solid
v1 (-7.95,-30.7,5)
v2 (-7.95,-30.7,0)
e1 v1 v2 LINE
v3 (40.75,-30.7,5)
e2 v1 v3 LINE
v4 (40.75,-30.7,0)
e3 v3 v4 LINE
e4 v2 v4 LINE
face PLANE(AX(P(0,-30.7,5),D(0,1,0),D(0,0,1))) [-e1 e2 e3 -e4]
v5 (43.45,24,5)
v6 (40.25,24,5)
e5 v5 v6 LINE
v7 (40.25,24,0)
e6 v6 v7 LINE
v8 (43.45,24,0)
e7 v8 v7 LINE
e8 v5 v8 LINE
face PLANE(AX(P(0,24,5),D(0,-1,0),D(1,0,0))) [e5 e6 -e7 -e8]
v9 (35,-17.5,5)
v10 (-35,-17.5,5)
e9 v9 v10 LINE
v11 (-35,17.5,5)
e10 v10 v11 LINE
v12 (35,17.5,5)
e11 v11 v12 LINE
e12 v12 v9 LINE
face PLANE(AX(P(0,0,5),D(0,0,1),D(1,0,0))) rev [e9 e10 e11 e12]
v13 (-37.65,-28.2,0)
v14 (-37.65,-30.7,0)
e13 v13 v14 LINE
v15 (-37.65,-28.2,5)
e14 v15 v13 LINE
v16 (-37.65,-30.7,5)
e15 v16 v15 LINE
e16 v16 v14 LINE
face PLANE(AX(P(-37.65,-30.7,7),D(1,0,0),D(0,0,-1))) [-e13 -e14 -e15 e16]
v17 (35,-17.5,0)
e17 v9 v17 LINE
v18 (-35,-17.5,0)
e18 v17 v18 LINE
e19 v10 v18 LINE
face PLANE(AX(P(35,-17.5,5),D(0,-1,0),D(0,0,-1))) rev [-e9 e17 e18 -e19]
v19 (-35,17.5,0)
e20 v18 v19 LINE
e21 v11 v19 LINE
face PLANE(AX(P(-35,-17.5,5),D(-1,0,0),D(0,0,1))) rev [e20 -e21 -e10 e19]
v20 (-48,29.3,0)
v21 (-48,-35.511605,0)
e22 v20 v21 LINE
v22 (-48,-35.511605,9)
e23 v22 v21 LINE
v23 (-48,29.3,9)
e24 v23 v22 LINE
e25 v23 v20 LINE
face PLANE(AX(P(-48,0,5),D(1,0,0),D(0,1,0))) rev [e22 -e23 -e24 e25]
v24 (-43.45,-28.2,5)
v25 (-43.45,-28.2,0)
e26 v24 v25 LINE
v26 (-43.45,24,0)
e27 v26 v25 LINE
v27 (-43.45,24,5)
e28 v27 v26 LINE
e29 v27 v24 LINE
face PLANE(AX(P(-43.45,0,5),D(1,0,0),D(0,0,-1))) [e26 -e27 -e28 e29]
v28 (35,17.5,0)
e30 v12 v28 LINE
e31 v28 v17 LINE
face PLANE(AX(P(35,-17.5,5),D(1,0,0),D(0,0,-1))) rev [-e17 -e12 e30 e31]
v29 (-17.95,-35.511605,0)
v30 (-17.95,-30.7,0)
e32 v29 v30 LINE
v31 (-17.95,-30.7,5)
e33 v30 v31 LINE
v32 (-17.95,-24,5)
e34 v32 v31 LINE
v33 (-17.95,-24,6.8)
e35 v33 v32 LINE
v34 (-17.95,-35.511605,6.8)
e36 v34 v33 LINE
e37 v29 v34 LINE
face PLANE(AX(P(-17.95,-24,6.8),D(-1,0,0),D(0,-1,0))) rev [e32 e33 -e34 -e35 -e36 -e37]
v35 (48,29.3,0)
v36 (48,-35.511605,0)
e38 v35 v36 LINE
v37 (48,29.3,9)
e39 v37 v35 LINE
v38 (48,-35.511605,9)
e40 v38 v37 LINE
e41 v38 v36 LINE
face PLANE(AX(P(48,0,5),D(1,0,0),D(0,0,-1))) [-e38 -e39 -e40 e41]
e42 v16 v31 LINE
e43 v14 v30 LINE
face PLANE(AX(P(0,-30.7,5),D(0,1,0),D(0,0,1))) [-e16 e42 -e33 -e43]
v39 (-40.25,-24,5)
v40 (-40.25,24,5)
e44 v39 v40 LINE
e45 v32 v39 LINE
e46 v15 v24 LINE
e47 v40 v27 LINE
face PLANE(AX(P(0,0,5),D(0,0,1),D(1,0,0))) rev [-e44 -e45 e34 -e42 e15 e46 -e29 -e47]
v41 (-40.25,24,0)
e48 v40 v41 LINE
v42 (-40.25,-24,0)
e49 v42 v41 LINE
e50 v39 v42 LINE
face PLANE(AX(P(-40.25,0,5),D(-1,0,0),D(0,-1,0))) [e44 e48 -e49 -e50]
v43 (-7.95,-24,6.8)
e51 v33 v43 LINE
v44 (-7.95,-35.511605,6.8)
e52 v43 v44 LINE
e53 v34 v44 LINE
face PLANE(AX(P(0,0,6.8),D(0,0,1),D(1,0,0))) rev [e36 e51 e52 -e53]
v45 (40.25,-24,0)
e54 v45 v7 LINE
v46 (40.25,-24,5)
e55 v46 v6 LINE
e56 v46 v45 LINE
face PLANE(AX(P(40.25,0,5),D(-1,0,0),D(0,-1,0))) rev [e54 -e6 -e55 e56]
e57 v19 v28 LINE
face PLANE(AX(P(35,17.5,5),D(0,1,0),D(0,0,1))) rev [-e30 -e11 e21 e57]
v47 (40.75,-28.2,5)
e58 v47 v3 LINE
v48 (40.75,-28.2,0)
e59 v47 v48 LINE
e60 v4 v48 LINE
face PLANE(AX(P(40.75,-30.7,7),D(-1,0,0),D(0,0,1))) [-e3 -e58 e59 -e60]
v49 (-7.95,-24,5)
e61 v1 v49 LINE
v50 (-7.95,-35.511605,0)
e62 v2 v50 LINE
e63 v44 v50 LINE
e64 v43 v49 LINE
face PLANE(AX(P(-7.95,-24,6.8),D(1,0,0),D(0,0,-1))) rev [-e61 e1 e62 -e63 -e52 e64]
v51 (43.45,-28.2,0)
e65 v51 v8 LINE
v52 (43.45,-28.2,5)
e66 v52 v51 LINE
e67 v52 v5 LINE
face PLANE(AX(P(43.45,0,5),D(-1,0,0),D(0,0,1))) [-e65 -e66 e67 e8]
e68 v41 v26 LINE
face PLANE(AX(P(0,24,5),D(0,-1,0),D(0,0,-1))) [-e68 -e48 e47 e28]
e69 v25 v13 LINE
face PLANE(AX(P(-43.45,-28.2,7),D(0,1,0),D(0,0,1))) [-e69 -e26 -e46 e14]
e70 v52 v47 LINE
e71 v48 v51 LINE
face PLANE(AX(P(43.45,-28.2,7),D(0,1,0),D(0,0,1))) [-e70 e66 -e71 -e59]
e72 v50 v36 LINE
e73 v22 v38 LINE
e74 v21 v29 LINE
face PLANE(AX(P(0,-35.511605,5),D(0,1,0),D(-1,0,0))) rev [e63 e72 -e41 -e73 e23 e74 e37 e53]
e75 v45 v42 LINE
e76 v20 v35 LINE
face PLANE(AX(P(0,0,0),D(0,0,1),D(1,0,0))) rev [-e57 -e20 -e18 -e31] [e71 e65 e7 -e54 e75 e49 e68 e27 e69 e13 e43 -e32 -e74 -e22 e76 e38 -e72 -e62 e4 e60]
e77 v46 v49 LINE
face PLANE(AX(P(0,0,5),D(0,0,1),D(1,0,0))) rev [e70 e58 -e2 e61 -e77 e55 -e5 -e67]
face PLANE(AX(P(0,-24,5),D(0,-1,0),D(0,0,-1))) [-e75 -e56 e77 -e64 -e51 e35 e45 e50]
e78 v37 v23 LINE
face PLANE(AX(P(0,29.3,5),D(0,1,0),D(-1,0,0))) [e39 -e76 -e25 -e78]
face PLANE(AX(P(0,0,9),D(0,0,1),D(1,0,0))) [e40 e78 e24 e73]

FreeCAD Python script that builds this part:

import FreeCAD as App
import Part
import Sketcher

V = App.Vector

doc = App.newDocument("Part")
params = doc.addObject("Spreadsheet::Sheet", "Params")
for row, (alias, value) in enumerate([
    ("sketch1_width", "96 mm"),
    ("sketch1_height", "48 mm"),
    ("sketch1_width2", "3.2 mm"),
    ("sketch1_width3", "80.5 mm"),
    ("sketch1_height2", "54.7 mm"),
    ("pad1_length", "5 mm"),
    ("sketch2_width", "96 mm"),
    ("pad2_length", "4 mm"),
    ("sketch3_width", "10 mm"),
    ("sketch3_height", "15 mm"),
    ("pocket1_length", "6.8 mm"),
    ("sketch4_width", "5.8 mm"),
    ("sketch4_width2", "2.7 mm"),
    ("sketch4_height", "2.5 mm"),
    ("pad3_length", "7 mm"),
    ("sketch5_width", "70 mm"),
    ("sketch5_height", "35 mm"),
    ("pocket2_length", "5 mm"),
], start=1):
    params.set(f"A{row}", alias)
    params.set(f"B{row}", "=" + value)
    params.setAlias(f"B{row}", alias)

body = doc.addObject("PartDesign::Body", "Body")

# Sketch on XY plane
sketch1 = body.newObject("Sketcher::SketchObject", "Sketch")
sketch1.AttachmentSupport = (doc.getObject("XY_Plane"), [""])
sketch1.MapMode = "FlatFace"
sketch1.addGeometry(Part.LineSegment(V(-48, 29.3, 0), V(-48, -35.5, 0)), False)
sketch1.addGeometry(Part.LineSegment(V(-48, -35.5, 0), V(48, -35.5, 0)), False)
sketch1.addGeometry(Part.LineSegment(V(48, -35.5, 0), V(48, 29.3, 0)), False)
sketch1.addGeometry(Part.LineSegment(V(48, 29.3, 0), V(-48, 29.3, 0)), False)
sketch1.addGeometry(Part.LineSegment(V(-43.5, 24, 0), V(-40.2, 24, 0)), False)
sketch1.addGeometry(Part.LineSegment(V(-40.2, 24, 0), V(-40.2, -24, 0)), False)
sketch1.addGeometry(Part.LineSegment(V(-40.2, -24, 0), V(40.2, -24, 0)), False)
sketch1.addGeometry(Part.LineSegment(V(40.2, -24, 0), V(40.2, 24, 0)), False)
sketch1.addGeometry(Part.LineSegment(V(40.2, 24, 0), V(43.5, 24, 0)), False)
sketch1.addGeometry(Part.LineSegment(V(43.5, 24, 0), V(43.5, -30.7, 0)), False)
sketch1.addGeometry(Part.LineSegment(V(43.5, -30.7, 0), V(-43.5, -30.7, 0)), False)
sketch1.addGeometry(Part.LineSegment(V(-43.5, -30.7, 0), V(-43.5, 24, 0)), False)
sketch1.addConstraint(Sketcher.Constraint("Coincident", 0, 2, 1, 1))
sketch1.addConstraint(Sketcher.Constraint("Coincident", 1, 2, 2, 1))
sketch1.addConstraint(Sketcher.Constraint("Coincident", 2, 2, 3, 1))
sketch1.addConstraint(Sketcher.Constraint("Coincident", 3, 2, 0, 1))
sketch1.addConstraint(Sketcher.Constraint("Coincident", 4, 2, 5, 1))
sketch1.addConstraint(Sketcher.Constraint("Coincident", 5, 2, 6, 1))
sketch1.addConstraint(Sketcher.Constraint("Coincident", 6, 2, 7, 1))
sketch1.addConstraint(Sketcher.Constraint("Coincident", 7, 2, 8, 1))
sketch1.addConstraint(Sketcher.Constraint("Coincident", 8, 2, 9, 1))
sketch1.addConstraint(Sketcher.Constraint("Coincident", 9, 2, 10, 1))
sketch1.addConstraint(Sketcher.Constraint("Coincident", 10, 2, 11, 1))
sketch1.addConstraint(Sketcher.Constraint("Coincident", 11, 2, 4, 1))
sketch1.addConstraint(Sketcher.Constraint("Vertical", 0))
sketch1.addConstraint(Sketcher.Constraint("Horizontal", 1))
sketch1.addConstraint(Sketcher.Constraint("Vertical", 2))
sketch1.addConstraint(Sketcher.Constraint("Horizontal", 3))
sketch1.addConstraint(Sketcher.Constraint("Horizontal", 4))
sketch1.addConstraint(Sketcher.Constraint("Vertical", 5))
sketch1.addConstraint(Sketcher.Constraint("Horizontal", 6))
sketch1.addConstraint(Sketcher.Constraint("Vertical", 7))
sketch1.addConstraint(Sketcher.Constraint("Horizontal", 8))
sketch1.addConstraint(Sketcher.Constraint("Vertical", 9))
sketch1.addConstraint(Sketcher.Constraint("Horizontal", 10))
sketch1.addConstraint(Sketcher.Constraint("Vertical", 11))
sketch1.addConstraint(Sketcher.Constraint("Symmetric", 4, 2, 6, 2, -1, 1))
sketch1.addConstraint(Sketcher.Constraint("Symmetric", 8, 2, 11, 2, -2))
sketch1.addConstraint(Sketcher.Constraint("DistanceX", 1, 1, 1, 2, 96.0))
sketch1.addConstraint(Sketcher.Constraint("DistanceY", 5, 2, 5, 1, 48.0))
sketch1.addConstraint(Sketcher.Constraint("DistanceX", 4, 1, 4, 2, 3.2))
sketch1.addConstraint(Sketcher.Constraint("DistanceX", 6, 1, 6, 2, 80.5))
sketch1.addConstraint(Sketcher.Constraint("DistanceY", 9, 2, 9, 1, 54.7))
sketch1.addConstraint(Sketcher.Constraint("DistanceX", 0, 2, -1, 1, 48.0))
sketch1.addConstraint(Sketcher.Constraint("DistanceY", 9, 2, 2, 2, 60.0))
sketch1.addConstraint(Sketcher.Constraint("DistanceY", 0, 2, 0, 1, 64.811605))
sketch1.setExpression("Constraints[26]", "Params.sketch1_width")
sketch1.setExpression("Constraints[27]", "Params.sketch1_height")
sketch1.setExpression("Constraints[28]", "Params.sketch1_width2")
sketch1.setExpression("Constraints[29]", "Params.sketch1_width3")
sketch1.setExpression("Constraints[30]", "Params.sketch1_height2")
pad1 = body.newObject("PartDesign::Pad", "Pad")
pad1.Profile = sketch1
pad1.setExpression("Length", "Params.pad1_length")

# Sketch on XY plane
sketch2 = body.newObject("Sketcher::SketchObject", "Sketch001")
sketch2.AttachmentSupport = (doc.getObject("XY_Plane"), [""])
sketch2.MapMode = "FlatFace"
sketch2.AttachmentOffset = App.Placement(V(0, 0, 5), App.Rotation())
sketch2.addGeometry(Part.LineSegment(V(-48, 29, 0), V(-48, -36, 0)), False)
sketch2.addGeometry(Part.LineSegment(V(-48, -36, 0), V(48, -36, 0)), False)
sketch2.addGeometry(Part.LineSegment(V(48, -36, 0), V(48, 29, 0)), False)
sketch2.addGeometry(Part.LineSegment(V(48, 29, 0), V(-48, 29, 0)), False)
sketch2.addConstraint(Sketcher.Constraint("Coincident", 0, 2, 1, 1))
sketch2.addConstraint(Sketcher.Constraint("Coincident", 1, 2, 2, 1))
sketch2.addConstraint(Sketcher.Constraint("Coincident", 2, 2, 3, 1))
sketch2.addConstraint(Sketcher.Constraint("Coincident", 3, 2, 0, 1))
sketch2.addConstraint(Sketcher.Constraint("Vertical", 0))
sketch2.addConstraint(Sketcher.Constraint("Horizontal", 1))
sketch2.addConstraint(Sketcher.Constraint("Vertical", 2))
sketch2.addConstraint(Sketcher.Constraint("Horizontal", 3))
sketch2.addConstraint(Sketcher.Constraint("DistanceX", 1, 1, 1, 2, 96.0))
sketch2.addConstraint(Sketcher.Constraint("DistanceX", 0, 2, -1, 1, 48.0))
sketch2.addConstraint(Sketcher.Constraint("DistanceY", -1, 1, 2, 2, 29.3))
sketch2.addConstraint(Sketcher.Constraint("DistanceY", 0, 2, 0, 1, 64.811605))
sketch2.setExpression("Constraints[8]", "Params.sketch2_width")
pad2 = body.newObject("PartDesign::Pad", "Pad001")
pad2.Profile = sketch2
pad2.setExpression("Length", "Params.pad2_length")

# Sketch on XY plane
sketch3 = body.newObject("Sketcher::SketchObject", "Sketch002")
sketch3.AttachmentSupport = (doc.getObject("XY_Plane"), [""])
sketch3.MapMode = "FlatFace"
sketch3.addGeometry(Part.LineSegment(V(-8, -24, 0), V(-8, -39, 0)), False)
sketch3.addGeometry(Part.LineSegment(V(-8, -39, 0), V(-18, -39, 0)), False)
sketch3.addGeometry(Part.LineSegment(V(-18, -39, 0), V(-18, -24, 0)), False)
sketch3.addGeometry(Part.LineSegment(V(-18, -24, 0), V(-8, -24, 0)), False)
sketch3.addConstraint(Sketcher.Constraint("Coincident", 0, 2, 1, 1))
sketch3.addConstraint(Sketcher.Constraint("Coincident", 1, 2, 2, 1))
sketch3.addConstraint(Sketcher.Constraint("Coincident", 2, 2, 3, 1))
sketch3.addConstraint(Sketcher.Constraint("Coincident", 3, 2, 0, 1))
sketch3.addConstraint(Sketcher.Constraint("Vertical", 0))
sketch3.addConstraint(Sketcher.Constraint("Horizontal", 1))
sketch3.addConstraint(Sketcher.Constraint("Vertical", 2))
sketch3.addConstraint(Sketcher.Constraint("Horizontal", 3))
sketch3.addConstraint(Sketcher.Constraint("DistanceX", 1, 2, 1, 1, 10.0))
sketch3.addConstraint(Sketcher.Constraint("DistanceY", 0, 2, 0, 1, 15.0))
sketch3.addConstraint(Sketcher.Constraint("DistanceY", 0, 2, -1, 1, 39.0))
sketch3.addConstraint(Sketcher.Constraint("DistanceX", 0, 2, -1, 1, 7.95))
sketch3.setExpression("Constraints[8]", "Params.sketch3_width")
sketch3.setExpression("Constraints[9]", "Params.sketch3_height")
pocket1 = body.newObject("PartDesign::Pocket", "Pocket")
pocket1.Profile = sketch3
pocket1.setExpression("Length", "Params.pocket1_length")
pocket1.Reversed = True

# Sketch on XY plane
sketch4 = body.newObject("Sketcher::SketchObject", "Sketch003")
sketch4.AttachmentSupport = (doc.getObject("XY_Plane"), [""])
sketch4.MapMode = "FlatFace"
sketch4.addGeometry(Part.LineSegment(V(-37.6, -28.2, 0), V(-37.6, -30.7, 0)), False)
sketch4.addGeometry(Part.LineSegment(V(-37.6, -30.7, 0), V(-43.5, -30.7, 0)), False)
sketch4.addGeometry(Part.LineSegment(V(-43.5, -30.7, 0), V(-43.5, -28.2, 0)), False)
sketch4.addGeometry(Part.LineSegment(V(-43.5, -28.2, 0), V(-37.6, -28.2, 0)), False)
sketch4.addGeometry(Part.LineSegment(V(43.5, -28.2, 0), V(43.5, -30.7, 0)), False)
sketch4.addGeometry(Part.LineSegment(V(43.5, -30.7, 0), V(40.8, -30.7, 0)), False)
sketch4.addGeometry(Part.LineSegment(V(40.8, -30.7, 0), V(40.8, -28.2, 0)), False)
sketch4.addGeometry(Part.LineSegment(V(40.8, -28.2, 0), V(43.5, -28.2, 0)), False)
sketch4.addConstraint(Sketcher.Constraint("Coincident", 0, 2, 1, 1))
sketch4.addConstraint(Sketcher.Constraint("Coincident", 1, 2, 2, 1))
sketch4.addConstraint(Sketcher.Constraint("Coincident", 2, 2, 3, 1))
sketch4.addConstraint(Sketcher.Constraint("Coincident", 3, 2, 0, 1))
sketch4.addConstraint(Sketcher.Constraint("Coincident", 4, 2, 5, 1))
sketch4.addConstraint(Sketcher.Constraint("Coincident", 5, 2, 6, 1))
sketch4.addConstraint(Sketcher.Constraint("Coincident", 6, 2, 7, 1))
sketch4.addConstraint(Sketcher.Constraint("Coincident", 7, 2, 4, 1))
sketch4.addConstraint(Sketcher.Constraint("Vertical", 0))
sketch4.addConstraint(Sketcher.Constraint("Horizontal", 1))
sketch4.addConstraint(Sketcher.Constraint("Vertical", 2))
sketch4.addConstraint(Sketcher.Constraint("Horizontal", 3))
sketch4.addConstraint(Sketcher.Constraint("Vertical", 4))
sketch4.addConstraint(Sketcher.Constraint("Horizontal", 5))
sketch4.addConstraint(Sketcher.Constraint("Vertical", 6))
sketch4.addConstraint(Sketcher.Constraint("Horizontal", 7))
sketch4.addConstraint(Sketcher.Constraint("Symmetric", 1, 2, 4, 2, -2))
sketch4.addConstraint(Sketcher.Constraint("Horizontal", 3, 2, 6, 2))
sketch4.addConstraint(Sketcher.Constraint("DistanceX", 1, 2, 1, 1, 5.8))
sketch4.addConstraint(Sketcher.Constraint("DistanceX", 5, 2, 5, 1, 2.7))
sketch4.addConstraint(Sketcher.Constraint("DistanceY", 0, 2, 0, 1, 2.5))
sketch4.addConstraint(Sketcher.Constraint("DistanceY", 0, 2, -1, 1, 30.7))
sketch4.addConstraint(Sketcher.Constraint("DistanceX", 0, 2, 4, 2, 81.1))
sketch4.setExpression("Constraints[18]", "Params.sketch4_width")
sketch4.setExpression("Constraints[19]", "Params.sketch4_width2")
sketch4.setExpression("Constraints[20]", "Params.sketch4_height")
pad3 = body.newObject("PartDesign::Pad", "Pad002")
pad3.Profile = sketch4
pad3.setExpression("Length", "Params.pad3_length")

# Sketch on XY plane
sketch5 = body.newObject("Sketcher::SketchObject", "Sketch004")
sketch5.AttachmentSupport = (doc.getObject("XY_Plane"), [""])
sketch5.MapMode = "FlatFace"
sketch5.addGeometry(Part.LineSegment(V(35, 18, 0), V(35, -18, 0)), False)
sketch5.addGeometry(Part.LineSegment(V(35, -18, 0), V(-35, -18, 0)), False)
sketch5.addGeometry(Part.LineSegment(V(-35, -18, 0), V(-35, 18, 0)), False)
sketch5.addGeometry(Part.LineSegment(V(-35, 18, 0), V(35, 18, 0)), False)
sketch5.addConstraint(Sketcher.Constraint("Coincident", 0, 2, 1, 1))
sketch5.addConstraint(Sketcher.Constraint("Coincident", 1, 2, 2, 1))
sketch5.addConstraint(Sketcher.Constraint("Coincident", 2, 2, 3, 1))
sketch5.addConstraint(Sketcher.Constraint("Coincident", 3, 2, 0, 1))
sketch5.addConstraint(Sketcher.Constraint("Vertical", 0))
sketch5.addConstraint(Sketcher.Constraint("Horizontal", 1))
sketch5.addConstraint(Sketcher.Constraint("Vertical", 2))
sketch5.addConstraint(Sketcher.Constraint("Horizontal", 3))
sketch5.addConstraint(Sketcher.Constraint("Symmetric", 0, 2, 2, 2, -1, 1))
sketch5.addConstraint(Sketcher.Constraint("DistanceX", 1, 2, 1, 1, 70.0))
sketch5.addConstraint(Sketcher.Constraint("DistanceY", 0, 2, 0, 1, 35.0))
sketch5.setExpression("Constraints[9]", "Params.sketch5_width")
sketch5.setExpression("Constraints[10]", "Params.sketch5_height")
pocket2 = body.newObject("PartDesign::Pocket", "Pocket001")
pocket2.Profile = sketch5
pocket2.setExpression("Length", "Params.pocket2_length")
pocket2.Reversed = True

doc.recompute()
